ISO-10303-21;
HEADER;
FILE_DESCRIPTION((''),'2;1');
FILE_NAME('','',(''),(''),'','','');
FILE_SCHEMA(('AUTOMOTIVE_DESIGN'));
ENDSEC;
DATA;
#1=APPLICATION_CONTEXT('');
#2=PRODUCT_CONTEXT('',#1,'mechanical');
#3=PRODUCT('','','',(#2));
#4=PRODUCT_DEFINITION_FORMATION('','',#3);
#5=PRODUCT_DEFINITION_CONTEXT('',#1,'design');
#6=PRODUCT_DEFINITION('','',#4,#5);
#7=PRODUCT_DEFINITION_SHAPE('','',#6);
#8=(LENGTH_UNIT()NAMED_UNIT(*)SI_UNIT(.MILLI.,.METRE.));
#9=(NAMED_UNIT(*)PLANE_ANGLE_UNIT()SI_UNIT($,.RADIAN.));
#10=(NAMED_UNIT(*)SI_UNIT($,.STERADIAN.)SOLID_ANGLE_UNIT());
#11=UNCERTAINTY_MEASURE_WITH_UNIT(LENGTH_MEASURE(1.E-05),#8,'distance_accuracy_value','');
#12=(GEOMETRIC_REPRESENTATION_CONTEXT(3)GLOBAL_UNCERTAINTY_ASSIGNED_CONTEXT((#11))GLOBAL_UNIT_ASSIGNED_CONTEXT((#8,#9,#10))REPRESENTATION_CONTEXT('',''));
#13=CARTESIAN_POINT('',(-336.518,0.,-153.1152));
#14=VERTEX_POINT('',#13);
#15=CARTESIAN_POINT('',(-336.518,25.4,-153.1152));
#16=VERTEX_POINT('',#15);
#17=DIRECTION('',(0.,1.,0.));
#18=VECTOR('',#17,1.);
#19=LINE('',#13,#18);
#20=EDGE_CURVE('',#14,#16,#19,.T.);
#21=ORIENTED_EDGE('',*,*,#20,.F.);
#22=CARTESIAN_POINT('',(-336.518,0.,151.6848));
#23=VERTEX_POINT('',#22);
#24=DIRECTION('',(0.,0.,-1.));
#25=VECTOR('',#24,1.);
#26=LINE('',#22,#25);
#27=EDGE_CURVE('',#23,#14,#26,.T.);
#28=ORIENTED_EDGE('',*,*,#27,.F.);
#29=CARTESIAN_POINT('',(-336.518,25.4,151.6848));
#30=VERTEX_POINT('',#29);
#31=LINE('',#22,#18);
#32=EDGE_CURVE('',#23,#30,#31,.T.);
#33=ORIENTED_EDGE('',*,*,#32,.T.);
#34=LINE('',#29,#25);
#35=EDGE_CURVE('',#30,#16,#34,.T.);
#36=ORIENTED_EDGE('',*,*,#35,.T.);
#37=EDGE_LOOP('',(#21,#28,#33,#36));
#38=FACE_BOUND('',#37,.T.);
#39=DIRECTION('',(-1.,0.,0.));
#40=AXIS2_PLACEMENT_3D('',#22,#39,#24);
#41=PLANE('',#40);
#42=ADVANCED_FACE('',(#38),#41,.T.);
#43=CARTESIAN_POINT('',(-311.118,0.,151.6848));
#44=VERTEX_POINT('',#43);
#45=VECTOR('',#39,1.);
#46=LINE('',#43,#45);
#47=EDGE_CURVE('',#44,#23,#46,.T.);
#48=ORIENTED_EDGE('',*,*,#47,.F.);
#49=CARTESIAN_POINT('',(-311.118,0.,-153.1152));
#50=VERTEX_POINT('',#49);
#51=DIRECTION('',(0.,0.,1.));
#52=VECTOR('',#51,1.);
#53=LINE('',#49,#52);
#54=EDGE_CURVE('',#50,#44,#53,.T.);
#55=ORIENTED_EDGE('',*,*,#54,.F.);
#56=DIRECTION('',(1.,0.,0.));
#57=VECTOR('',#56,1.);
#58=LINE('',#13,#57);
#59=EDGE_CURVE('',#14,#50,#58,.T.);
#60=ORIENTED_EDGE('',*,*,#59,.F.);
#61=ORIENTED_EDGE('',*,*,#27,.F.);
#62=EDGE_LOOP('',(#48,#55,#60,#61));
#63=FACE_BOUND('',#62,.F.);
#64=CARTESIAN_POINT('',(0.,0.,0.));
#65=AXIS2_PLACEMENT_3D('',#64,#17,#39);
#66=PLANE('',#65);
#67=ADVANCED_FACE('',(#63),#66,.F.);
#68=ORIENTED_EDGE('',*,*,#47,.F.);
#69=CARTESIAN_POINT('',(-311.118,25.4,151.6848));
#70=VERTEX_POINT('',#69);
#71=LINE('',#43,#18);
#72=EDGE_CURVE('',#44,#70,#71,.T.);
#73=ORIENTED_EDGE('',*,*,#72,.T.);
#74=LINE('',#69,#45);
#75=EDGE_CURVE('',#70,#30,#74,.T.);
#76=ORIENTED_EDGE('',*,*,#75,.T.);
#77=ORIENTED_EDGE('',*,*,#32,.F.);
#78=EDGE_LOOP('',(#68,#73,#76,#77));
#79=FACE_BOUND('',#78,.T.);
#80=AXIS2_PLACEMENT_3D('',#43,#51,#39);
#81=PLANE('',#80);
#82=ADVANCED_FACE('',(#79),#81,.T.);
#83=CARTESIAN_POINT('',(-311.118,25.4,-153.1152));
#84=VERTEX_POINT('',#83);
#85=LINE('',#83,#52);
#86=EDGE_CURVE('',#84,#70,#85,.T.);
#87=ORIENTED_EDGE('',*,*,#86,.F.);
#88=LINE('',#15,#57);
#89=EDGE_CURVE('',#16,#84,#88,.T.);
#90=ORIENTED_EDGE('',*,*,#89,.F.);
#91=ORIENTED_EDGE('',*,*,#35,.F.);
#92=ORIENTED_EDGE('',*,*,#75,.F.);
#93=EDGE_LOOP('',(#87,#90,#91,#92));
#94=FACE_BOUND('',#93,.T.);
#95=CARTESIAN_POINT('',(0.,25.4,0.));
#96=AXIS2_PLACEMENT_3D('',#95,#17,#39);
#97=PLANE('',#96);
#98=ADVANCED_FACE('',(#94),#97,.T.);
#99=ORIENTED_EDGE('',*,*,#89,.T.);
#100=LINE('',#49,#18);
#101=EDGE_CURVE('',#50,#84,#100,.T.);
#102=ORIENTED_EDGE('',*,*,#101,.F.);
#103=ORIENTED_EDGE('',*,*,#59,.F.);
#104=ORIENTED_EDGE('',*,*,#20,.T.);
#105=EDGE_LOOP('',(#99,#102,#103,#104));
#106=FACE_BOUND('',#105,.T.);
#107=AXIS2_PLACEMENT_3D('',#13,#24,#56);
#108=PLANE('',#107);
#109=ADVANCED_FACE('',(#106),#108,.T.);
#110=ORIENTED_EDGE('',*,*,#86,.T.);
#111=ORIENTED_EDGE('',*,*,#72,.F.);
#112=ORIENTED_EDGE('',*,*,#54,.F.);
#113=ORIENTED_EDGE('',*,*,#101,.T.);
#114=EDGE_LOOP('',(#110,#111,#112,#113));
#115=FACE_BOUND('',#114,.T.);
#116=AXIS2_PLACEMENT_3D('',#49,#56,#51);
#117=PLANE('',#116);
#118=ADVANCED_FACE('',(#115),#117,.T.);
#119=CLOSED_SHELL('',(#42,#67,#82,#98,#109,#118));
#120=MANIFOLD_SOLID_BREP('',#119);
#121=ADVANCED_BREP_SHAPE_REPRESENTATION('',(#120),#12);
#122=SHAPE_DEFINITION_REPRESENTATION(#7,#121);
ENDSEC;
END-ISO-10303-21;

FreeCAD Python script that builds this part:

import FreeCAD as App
import Part
import Sketcher
from FreeCAD import Vector
Q = App.Units.Quantity

doc = App.newDocument("Part")
body = doc.addObject("PartDesign::Body", "Body")

sketch1 = body.newObject("Sketcher::SketchObject", "Sketch")
sketch1.AttachmentSupport = (doc.getObject("XZ_Plane"), [""])
sketch1.MapMode = "FlatFace"
sketch1.addGeometry([
    Part.LineSegment(Vector(-311.118, -153.1152, 0), Vector(-336.518, -153.1152, 0)),
    Part.LineSegment(Vector(-336.518, -153.1152, 0), Vector(-336.518, 151.6848, 0)),
    Part.LineSegment(Vector(-336.518, 151.6848, 0), Vector(-311.118, 151.6848, 0)),
    Part.LineSegment(Vector(-311.118, 151.6848, 0), Vector(-311.118, -153.1152, 0)),
], False)
sketch1.addConstraint([
    Sketcher.Constraint("Coincident", 0, 2, 1, 1),
    Sketcher.Constraint("Coincident", 1, 2, 2, 1),
    Sketcher.Constraint("Coincident", 2, 2, 3, 1),
    Sketcher.Constraint("Coincident", 3, 2, 0, 1),
    Sketcher.Constraint("Horizontal", 0),
    Sketcher.Constraint("Vertical", 1),
    Sketcher.Constraint("Horizontal", 2),
    Sketcher.Constraint("Vertical", 3),
    Sketcher.Constraint("DistanceX", 0, 2, 0, 1, Q("1 in")),
    Sketcher.Constraint("DistanceY", 1, 1, 1, 2, Q("12 in")),
    Sketcher.Constraint("DistanceX", 0, 2, -1, 1, 336.518),
    Sketcher.Constraint("DistanceY", 0, 2, -1, 1, 153.1152),
])
pad1 = body.newObject("PartDesign::Pad", "Pad")
pad1.Profile = sketch1
pad1.Length = Q("1 in")
pad1.Reversed = True

doc.recompute()
